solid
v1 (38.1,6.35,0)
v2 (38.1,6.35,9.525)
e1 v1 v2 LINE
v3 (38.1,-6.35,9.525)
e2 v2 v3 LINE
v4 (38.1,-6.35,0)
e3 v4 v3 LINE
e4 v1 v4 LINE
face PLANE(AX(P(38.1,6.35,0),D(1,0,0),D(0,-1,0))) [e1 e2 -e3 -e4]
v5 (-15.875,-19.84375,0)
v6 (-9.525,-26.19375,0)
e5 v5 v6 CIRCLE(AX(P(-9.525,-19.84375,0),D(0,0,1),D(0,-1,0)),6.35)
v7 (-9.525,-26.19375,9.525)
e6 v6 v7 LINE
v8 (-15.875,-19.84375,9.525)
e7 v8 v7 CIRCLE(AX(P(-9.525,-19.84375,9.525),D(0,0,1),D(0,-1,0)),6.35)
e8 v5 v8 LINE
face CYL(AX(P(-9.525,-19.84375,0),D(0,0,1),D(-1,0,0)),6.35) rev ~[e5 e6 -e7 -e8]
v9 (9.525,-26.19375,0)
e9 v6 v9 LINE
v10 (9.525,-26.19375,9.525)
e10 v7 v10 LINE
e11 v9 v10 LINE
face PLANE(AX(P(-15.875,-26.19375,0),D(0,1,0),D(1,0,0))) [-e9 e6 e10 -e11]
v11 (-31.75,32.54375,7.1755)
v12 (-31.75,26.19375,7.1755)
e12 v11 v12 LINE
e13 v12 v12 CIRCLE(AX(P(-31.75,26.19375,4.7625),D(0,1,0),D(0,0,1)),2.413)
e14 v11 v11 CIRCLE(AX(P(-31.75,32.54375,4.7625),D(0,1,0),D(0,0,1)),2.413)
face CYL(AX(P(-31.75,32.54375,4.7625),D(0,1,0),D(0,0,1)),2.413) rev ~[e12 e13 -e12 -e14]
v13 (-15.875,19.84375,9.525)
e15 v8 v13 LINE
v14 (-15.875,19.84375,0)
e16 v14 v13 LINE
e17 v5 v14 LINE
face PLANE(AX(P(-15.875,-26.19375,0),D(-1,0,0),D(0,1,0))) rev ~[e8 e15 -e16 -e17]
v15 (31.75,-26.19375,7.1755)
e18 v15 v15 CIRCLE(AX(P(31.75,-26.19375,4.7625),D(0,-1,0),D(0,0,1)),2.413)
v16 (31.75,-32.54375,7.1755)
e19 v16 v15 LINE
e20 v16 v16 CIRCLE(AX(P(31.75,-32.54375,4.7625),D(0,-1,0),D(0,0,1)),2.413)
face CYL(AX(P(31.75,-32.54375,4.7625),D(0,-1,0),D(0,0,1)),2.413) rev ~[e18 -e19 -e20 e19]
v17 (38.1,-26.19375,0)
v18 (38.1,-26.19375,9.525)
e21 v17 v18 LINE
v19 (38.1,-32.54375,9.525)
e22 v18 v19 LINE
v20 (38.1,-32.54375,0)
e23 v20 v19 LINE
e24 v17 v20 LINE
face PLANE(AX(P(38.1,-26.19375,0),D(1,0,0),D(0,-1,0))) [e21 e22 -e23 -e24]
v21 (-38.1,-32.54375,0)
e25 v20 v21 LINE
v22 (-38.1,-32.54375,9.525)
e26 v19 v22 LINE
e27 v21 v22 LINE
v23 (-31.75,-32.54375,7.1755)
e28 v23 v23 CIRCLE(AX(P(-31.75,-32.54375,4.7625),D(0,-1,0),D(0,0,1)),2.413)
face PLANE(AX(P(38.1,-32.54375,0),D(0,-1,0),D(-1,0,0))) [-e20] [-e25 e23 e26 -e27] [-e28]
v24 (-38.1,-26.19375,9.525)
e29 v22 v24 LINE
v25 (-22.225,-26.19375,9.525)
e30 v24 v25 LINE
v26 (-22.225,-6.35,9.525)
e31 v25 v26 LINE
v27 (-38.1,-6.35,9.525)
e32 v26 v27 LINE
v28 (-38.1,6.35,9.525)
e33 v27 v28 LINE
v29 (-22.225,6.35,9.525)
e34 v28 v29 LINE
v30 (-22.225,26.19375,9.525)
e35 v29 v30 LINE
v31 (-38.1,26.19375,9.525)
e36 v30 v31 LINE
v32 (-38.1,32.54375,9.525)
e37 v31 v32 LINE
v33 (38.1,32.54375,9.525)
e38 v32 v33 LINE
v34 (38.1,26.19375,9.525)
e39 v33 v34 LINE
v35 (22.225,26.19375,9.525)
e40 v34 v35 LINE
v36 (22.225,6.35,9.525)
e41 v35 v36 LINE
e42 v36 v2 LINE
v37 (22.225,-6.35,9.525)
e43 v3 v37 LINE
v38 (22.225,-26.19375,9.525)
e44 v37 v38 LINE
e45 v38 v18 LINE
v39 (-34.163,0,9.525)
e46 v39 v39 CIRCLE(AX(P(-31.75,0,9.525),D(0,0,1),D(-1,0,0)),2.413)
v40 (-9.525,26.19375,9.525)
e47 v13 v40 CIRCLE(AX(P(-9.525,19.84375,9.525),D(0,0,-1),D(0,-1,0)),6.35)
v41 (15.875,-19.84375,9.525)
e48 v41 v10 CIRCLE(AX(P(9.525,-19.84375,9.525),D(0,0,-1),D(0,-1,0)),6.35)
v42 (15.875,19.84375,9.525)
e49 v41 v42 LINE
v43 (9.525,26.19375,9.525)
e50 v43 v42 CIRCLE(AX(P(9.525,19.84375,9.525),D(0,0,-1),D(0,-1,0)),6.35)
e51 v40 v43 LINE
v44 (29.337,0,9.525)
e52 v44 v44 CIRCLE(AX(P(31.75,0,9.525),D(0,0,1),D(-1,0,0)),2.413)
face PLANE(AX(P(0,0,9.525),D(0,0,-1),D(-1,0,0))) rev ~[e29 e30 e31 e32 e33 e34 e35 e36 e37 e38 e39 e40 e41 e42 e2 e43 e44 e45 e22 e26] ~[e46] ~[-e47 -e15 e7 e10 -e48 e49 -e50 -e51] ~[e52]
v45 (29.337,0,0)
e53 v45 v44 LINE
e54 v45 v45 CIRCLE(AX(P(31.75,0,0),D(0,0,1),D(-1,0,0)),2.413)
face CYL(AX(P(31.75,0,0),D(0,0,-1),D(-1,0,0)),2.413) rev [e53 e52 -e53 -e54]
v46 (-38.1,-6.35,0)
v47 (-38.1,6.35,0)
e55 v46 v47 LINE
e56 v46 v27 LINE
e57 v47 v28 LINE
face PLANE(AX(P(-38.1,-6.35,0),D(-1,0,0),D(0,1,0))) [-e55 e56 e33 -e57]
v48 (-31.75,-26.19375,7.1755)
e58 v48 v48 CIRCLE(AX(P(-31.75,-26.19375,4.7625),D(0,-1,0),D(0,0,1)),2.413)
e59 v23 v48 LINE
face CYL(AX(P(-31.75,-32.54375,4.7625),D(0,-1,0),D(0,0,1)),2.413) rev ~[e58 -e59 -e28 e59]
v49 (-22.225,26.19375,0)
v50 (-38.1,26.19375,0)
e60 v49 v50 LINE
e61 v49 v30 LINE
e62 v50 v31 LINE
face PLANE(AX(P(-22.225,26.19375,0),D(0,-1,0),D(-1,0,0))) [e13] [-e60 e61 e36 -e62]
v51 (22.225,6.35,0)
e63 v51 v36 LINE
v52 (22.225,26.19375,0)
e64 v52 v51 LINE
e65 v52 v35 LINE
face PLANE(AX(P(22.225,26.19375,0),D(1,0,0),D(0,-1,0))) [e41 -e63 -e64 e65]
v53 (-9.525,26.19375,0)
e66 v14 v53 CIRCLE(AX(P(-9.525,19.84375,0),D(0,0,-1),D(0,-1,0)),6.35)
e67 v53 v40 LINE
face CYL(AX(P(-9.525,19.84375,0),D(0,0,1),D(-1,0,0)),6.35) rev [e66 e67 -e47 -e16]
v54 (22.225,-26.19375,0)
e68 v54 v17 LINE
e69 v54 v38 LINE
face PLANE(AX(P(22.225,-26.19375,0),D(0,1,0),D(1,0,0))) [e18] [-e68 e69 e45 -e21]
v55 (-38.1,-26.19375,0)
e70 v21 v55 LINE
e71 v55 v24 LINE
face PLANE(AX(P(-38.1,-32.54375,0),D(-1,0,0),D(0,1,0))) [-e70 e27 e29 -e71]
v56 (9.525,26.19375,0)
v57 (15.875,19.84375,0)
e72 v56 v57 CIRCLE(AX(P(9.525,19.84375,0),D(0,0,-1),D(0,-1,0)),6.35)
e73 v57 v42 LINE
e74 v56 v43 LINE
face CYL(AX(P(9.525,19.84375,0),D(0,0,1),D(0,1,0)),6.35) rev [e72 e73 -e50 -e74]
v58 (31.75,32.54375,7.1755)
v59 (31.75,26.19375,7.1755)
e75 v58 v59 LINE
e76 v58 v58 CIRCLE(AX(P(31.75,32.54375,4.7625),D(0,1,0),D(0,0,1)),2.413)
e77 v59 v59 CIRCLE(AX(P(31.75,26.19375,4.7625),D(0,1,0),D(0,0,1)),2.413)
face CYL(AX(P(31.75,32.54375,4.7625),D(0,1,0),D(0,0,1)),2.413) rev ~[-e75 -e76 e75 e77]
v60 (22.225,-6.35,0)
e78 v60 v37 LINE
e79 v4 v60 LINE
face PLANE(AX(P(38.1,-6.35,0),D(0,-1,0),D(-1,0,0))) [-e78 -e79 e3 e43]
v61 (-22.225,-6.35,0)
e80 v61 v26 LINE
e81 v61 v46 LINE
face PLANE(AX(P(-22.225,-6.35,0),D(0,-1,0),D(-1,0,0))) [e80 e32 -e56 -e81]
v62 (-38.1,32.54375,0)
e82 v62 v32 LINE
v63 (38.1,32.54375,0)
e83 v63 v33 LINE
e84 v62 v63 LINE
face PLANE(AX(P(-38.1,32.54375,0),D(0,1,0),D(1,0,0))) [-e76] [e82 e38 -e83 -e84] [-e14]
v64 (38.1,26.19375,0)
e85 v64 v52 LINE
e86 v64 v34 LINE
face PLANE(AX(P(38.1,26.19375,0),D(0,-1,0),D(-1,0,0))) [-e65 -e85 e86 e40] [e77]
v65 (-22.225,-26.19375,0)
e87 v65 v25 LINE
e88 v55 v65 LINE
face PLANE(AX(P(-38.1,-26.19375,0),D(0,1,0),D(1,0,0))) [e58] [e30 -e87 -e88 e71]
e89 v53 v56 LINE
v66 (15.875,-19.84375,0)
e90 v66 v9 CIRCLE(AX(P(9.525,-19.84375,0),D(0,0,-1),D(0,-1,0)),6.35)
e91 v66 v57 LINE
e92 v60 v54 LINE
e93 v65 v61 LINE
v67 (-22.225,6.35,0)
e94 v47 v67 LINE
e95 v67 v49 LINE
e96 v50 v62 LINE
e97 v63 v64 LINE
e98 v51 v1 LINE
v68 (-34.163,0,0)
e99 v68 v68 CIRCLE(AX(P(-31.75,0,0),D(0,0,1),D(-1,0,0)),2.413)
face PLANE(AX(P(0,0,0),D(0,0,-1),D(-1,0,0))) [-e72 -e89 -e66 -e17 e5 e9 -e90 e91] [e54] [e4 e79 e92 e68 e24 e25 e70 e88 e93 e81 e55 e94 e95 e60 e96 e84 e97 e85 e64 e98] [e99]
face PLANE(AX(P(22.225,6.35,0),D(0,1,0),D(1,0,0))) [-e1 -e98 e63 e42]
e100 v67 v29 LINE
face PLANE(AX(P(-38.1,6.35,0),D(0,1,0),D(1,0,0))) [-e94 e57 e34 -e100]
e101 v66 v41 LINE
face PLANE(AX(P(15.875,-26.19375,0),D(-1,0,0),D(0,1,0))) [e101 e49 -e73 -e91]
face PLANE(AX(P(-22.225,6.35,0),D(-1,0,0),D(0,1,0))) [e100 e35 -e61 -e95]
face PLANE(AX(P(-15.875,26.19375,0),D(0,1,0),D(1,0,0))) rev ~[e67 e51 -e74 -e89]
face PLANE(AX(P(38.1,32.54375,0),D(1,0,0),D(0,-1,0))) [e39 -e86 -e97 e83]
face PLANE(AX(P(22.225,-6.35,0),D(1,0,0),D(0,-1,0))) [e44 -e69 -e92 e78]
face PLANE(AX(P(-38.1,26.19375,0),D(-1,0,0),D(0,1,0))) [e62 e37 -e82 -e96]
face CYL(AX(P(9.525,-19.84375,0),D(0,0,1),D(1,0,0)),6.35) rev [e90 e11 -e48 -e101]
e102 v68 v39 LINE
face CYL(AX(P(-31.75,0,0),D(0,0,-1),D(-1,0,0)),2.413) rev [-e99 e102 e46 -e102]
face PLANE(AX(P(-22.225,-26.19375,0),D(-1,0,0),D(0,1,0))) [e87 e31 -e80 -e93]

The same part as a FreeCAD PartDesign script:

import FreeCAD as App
import Part
import Sketcher

V = App.Vector
Q = App.Units.Quantity


def edges_at(feature, points):
    """Names of the edges that pass closest to the given points."""
    edges = feature.Shape.Edges
    near = lambda p: min(range(len(edges)), key=lambda i: edges[i].distToShape(Part.Vertex(*p))[0])
    return sorted({f"Edge{near(p) + 1}" for p in points})

doc = App.newDocument("Part")
body = doc.addObject("PartDesign::Body", "Body")

sketch1 = doc.addObject("Sketcher::SketchObject", "Sketch")
body.addObject(sketch1)
sketch1.AttachmentSupport = (doc.XY_Plane, [""])
sketch1.MapMode = "FlatFace"
sketch1.addGeometry([
    Part.LineSegment(V(-22.2, -6.3, 0), V(-22.2, -26.2, 0)),
    Part.LineSegment(V(-22.2, -26.2, 0), V(-38.1, -26.2, 0)),
    Part.LineSegment(V(-38.1, -26.2, 0), V(-38.1, -32.5, 0)),
    Part.LineSegment(V(-38.1, -32.5, 0), V(38.1, -32.5, 0)),
    Part.LineSegment(V(38.1, -32.5, 0), V(38.1, -26.2, 0)),
    Part.LineSegment(V(38.1, -26.2, 0), V(22.2, -26.2, 0)),
    Part.LineSegment(V(22.2, -26.2, 0), V(22.2, -6.3, 0)),
    Part.LineSegment(V(22.2, -6.3, 0), V(38.1, -6.3, 0)),
    Part.LineSegment(V(38.1, -6.3, 0), V(38.1, 6.3, 0)),
    Part.LineSegment(V(38.1, 6.3, 0), V(22.2, 6.3, 0)),
    Part.LineSegment(V(22.2, 6.3, 0), V(22.2, 26.2, 0)),
    Part.LineSegment(V(22.2, 26.2, 0), V(38.1, 26.2, 0)),
    Part.LineSegment(V(38.1, 26.2, 0), V(38.1, 32.5, 0)),
    Part.LineSegment(V(38.1, 32.5, 0), V(-38.1, 32.5, 0)),
    Part.LineSegment(V(-38.1, 32.5, 0), V(-38.1, 26.2, 0)),
    Part.LineSegment(V(-38.1, 26.2, 0), V(-22.2, 26.2, 0)),
    Part.LineSegment(V(-22.2, 26.2, 0), V(-22.2, 6.3, 0)),
    Part.LineSegment(V(-22.2, 6.3, 0), V(-38.1, 6.3, 0)),
    Part.LineSegment(V(-38.1, 6.3, 0), V(-38.1, -6.3, 0)),
    Part.LineSegment(V(-38.1, -6.3, 0), V(-22.2, -6.3, 0)),
    Part.Circle(V(31.8, 0, 0), V(0, 0, 1), 2.4),
    Part.LineSegment(V(-15.9, -26.2, 0), V(-15.9, 26.2, 0)),
    Part.LineSegment(V(-15.9, 26.2, 0), V(15.9, 26.2, 0)),
    Part.LineSegment(V(15.9, 26.2, 0), V(15.9, -26.2, 0)),
    Part.LineSegment(V(15.9, -26.2, 0), V(-15.9, -26.2, 0)),
    Part.Circle(V(-31.8, 0, 0), V(0, 0, 1), 2.4),
], False)
sketch1.addConstraint([
    Sketcher.Constraint("Coincident", 0, 2, 1, 1),
    Sketcher.Constraint("Coincident", 1, 2, 2, 1),
    Sketcher.Constraint("Coincident", 2, 2, 3, 1),
    Sketcher.Constraint("Coincident", 3, 2, 4, 1),
    Sketcher.Constraint("Coincident", 4, 2, 5, 1),
    Sketcher.Constraint("Coincident", 5, 2, 6, 1),
    Sketcher.Constraint("Coincident", 6, 2, 7, 1),
    Sketcher.Constraint("Coincident", 7, 2, 8, 1),
    Sketcher.Constraint("Coincident", 8, 2, 9, 1),
    Sketcher.Constraint("Coincident", 9, 2, 10, 1),
    Sketcher.Constraint("Coincident", 10, 2, 11, 1),
    Sketcher.Constraint("Coincident", 11, 2, 12, 1),
    Sketcher.Constraint("Coincident", 12, 2, 13, 1),
    Sketcher.Constraint("Coincident", 13, 2, 14, 1),
    Sketcher.Constraint("Coincident", 14, 2, 15, 1),
    Sketcher.Constraint("Coincident", 15, 2, 16, 1),
    Sketcher.Constraint("Coincident", 16, 2, 17, 1),
    Sketcher.Constraint("Coincident", 17, 2, 18, 1),
    Sketcher.Constraint("Coincident", 18, 2, 19, 1),
    Sketcher.Constraint("Coincident", 19, 2, 0, 1),
    Sketcher.Constraint("Coincident", 21, 2, 22, 1),
    Sketcher.Constraint("Coincident", 22, 2, 23, 1),
    Sketcher.Constraint("Coincident", 23, 2, 24, 1),
    Sketcher.Constraint("Coincident", 24, 2, 21, 1),
    Sketcher.Constraint("Vertical", 0),
    Sketcher.Constraint("Horizontal", 1),
    Sketcher.Constraint("Vertical", 2),
    Sketcher.Constraint("Horizontal", 3),
    Sketcher.Constraint("Vertical", 4),
    Sketcher.Constraint("Horizontal", 5),
    Sketcher.Constraint("Vertical", 6),
    Sketcher.Constraint("Horizontal", 7),
    Sketcher.Constraint("Vertical", 8),
    Sketcher.Constraint("Horizontal", 9),
    Sketcher.Constraint("Vertical", 10),
    Sketcher.Constraint("Horizontal", 11),
    Sketcher.Constraint("Vertical", 12),
    Sketcher.Constraint("Horizontal", 13),
    Sketcher.Constraint("Vertical", 14),
    Sketcher.Constraint("Horizontal", 15),
    Sketcher.Constraint("Vertical", 16),
    Sketcher.Constraint("Horizontal", 17),
    Sketcher.Constraint("Vertical", 18),
    Sketcher.Constraint("Horizontal", 19),
    Sketcher.Constraint("Vertical", 21),
    Sketcher.Constraint("Horizontal", 22),
    Sketcher.Constraint("Vertical", 23),
    Sketcher.Constraint("Horizontal", 24),
    Sketcher.Constraint("Equal", 20, 25),
    Sketcher.Constraint("Symmetric", 20, 3, 25, 3, -1, 1),
    Sketcher.Constraint("Symmetric", 0, 2, 10, 2, -1, 1),
    Sketcher.Constraint("Symmetric", 2, 2, 12, 2, -1, 1),
    Sketcher.Constraint("Symmetric", 4, 2, 14, 2, -1, 1),
    Sketcher.Constraint("Symmetric", 6, 2, 16, 2, -1, 1),
    Sketcher.Constraint("Symmetric", 8, 2, 18, 2, -1, 1),
    Sketcher.Constraint("Symmetric", 21, 2, 23, 2, -1, 1),
    Sketcher.Constraint("Symmetric", 1, 2, 4, 2, -2),
    Sketcher.Constraint("Symmetric", 9, 2, 16, 2, -2),
    Sketcher.Constraint("PointOnObject", 20, 3, -1),
    Sketcher.Constraint("Horizontal", 15, 2, 21, 2),
    Sketcher.Constraint("Vertical", 4, 2, 7, 2),
    Sketcher.Constraint("Diameter", 20, Q("0.19 in")),
    Sketcher.Constraint("DistanceX", 3, 1, 3, 2, Q("3 in")),
    Sketcher.Constraint("DistanceY", 8, 1, 8, 2, Q("0.5 in")),
    Sketcher.Constraint("DistanceX", 22, 1, 22, 2, Q("1.25 in")),
    Sketcher.Constraint("DistanceY", 2, 2, 2, 1, Q("0.25 in")),
    Sketcher.Constraint("DistanceX", 25, 3, 20, 3, Q("2.5 in")),
    Sketcher.Constraint("DistanceX", 1, 2, 1, 1, Q("0.625 in")),
    Sketcher.Constraint("DistanceY", 0, 2, 0, 1, Q("0.78125 in")),
])
pad1 = doc.addObject("PartDesign::Pad", "Pad")
body.addObject(pad1)
pad1.Profile = sketch1
pad1.Length = Q("0.375 in")
doc.recompute()

fillet = doc.addObject("PartDesign::Fillet", "Fillet")
body.addObject(fillet)
fillet.Base = (pad1, edges_at(pad1, [
    (-15.875, 26.194, 4.763),
    (-15.875, -26.194, 4.763),
    (15.875, -26.194, 4.763),
    (15.875, 26.194, 4.763),
]))
fillet.Radius = Q("0.25 in")

sketch2 = doc.addObject("Sketcher::SketchObject", "Sketch001")
body.addObject(sketch2)
sketch2.AttachmentSupport = (doc.XZ_Plane, [""])
sketch2.MapMode = "FlatFace"
sketch2.AttachmentOffset = App.Placement(V(0, 0, -1.28125 * 25.4), App.Rotation())
sketch2.addGeometry(Part.Circle(V(-31.8, 4.8, 0), V(0, 0, 1), 2.4), False)
sketch2.addConstraint([
    Sketcher.Constraint("Diameter", 0, Q("0.19 in")),
    Sketcher.Constraint("DistanceX", 0, 3, -1, 1, Q("1.25 in")),
    Sketcher.Constraint("DistanceY", -1, 1, 0, 3, Q("0.1875 in")),
])
pocket1 = doc.addObject("PartDesign::Pocket", "Pocket")
body.addObject(pocket1)
pocket1.Profile = sketch2
pocket1.Type = "UpToFirst"
pocket1.Reversed = True

sketch3 = doc.addObject("Sketcher::SketchObject", "Sketch002")
body.addObject(sketch3)
sketch3.AttachmentSupport = (doc.XZ_Plane, [""])
sketch3.MapMode = "FlatFace"
sketch3.AttachmentOffset = App.Placement(V(0, 0, -1.28125 * 25.4), App.Rotation())
sketch3.addGeometry(Part.Circle(V(31.8, 4.8, 0), V(0, 0, 1), 2.4), False)
sketch3.addConstraint([
    Sketcher.Constraint("Diameter", 0, Q("0.19 in")),
    Sketcher.Constraint("DistanceX", -1, 1, 0, 3, Q("1.25 in")),
    Sketcher.Constraint("DistanceY", -1, 1, 0, 3, Q("0.1875 in")),
])
pocket2 = doc.addObject("PartDesign::Pocket", "Pocket001")
body.addObject(pocket2)
pocket2.Profile = sketch3
pocket2.Type = "UpToFirst"
pocket2.Reversed = True

sketch4 = doc.addObject("Sketcher::SketchObject", "Sketch003")
body.addObject(sketch4)
sketch4.AttachmentSupport = (doc.XZ_Plane, [""])
sketch4.MapMode = "FlatFace"
sketch4.AttachmentOffset = App.Placement(V(0, 0, 1.28125 * 25.4), App.Rotation())
sketch4.addGeometry(Part.Circle(V(-31.8, 4.8, 0), V(0, 0, 1), 2.4), False)
sketch4.addConstraint([
    Sketcher.Constraint("Diameter", 0, Q("0.19 in")),
    Sketcher.Constraint("DistanceX", 0, 3, -1, 1, Q("1.25 in")),
    Sketcher.Constraint("DistanceY", -1, 1, 0, 3, Q("0.1875 in")),
])
pocket3 = doc.addObject("PartDesign::Pocket", "Pocket002")
body.addObject(pocket3)
pocket3.Profile = sketch4
pocket3.Type = "UpToFirst"

sketch5 = doc.addObject("Sketcher::SketchObject", "Sketch004")
body.addObject(sketch5)
sketch5.AttachmentSupport = (doc.XZ_Plane, [""])
sketch5.MapMode = "FlatFace"
sketch5.AttachmentOffset = App.Placement(V(0, 0, 1.28125 * 25.4), App.Rotation())
sketch5.addGeometry(Part.Circle(V(31.8, 4.8, 0), V(0, 0, 1), 2.4), False)
sketch5.addConstraint([
    Sketcher.Constraint("Diameter", 0, Q("0.19 in")),
    Sketcher.Constraint("DistanceX", -1, 1, 0, 3, Q("1.25 in")),
    Sketcher.Constraint("DistanceY", -1, 1, 0, 3, Q("0.1875 in")),
])
pocket4 = doc.addObject("PartDesign::Pocket", "Pocket003")
body.addObject(pocket4)
pocket4.Profile = sketch5
pocket4.Type = "UpToFirst"

doc.recompute()
